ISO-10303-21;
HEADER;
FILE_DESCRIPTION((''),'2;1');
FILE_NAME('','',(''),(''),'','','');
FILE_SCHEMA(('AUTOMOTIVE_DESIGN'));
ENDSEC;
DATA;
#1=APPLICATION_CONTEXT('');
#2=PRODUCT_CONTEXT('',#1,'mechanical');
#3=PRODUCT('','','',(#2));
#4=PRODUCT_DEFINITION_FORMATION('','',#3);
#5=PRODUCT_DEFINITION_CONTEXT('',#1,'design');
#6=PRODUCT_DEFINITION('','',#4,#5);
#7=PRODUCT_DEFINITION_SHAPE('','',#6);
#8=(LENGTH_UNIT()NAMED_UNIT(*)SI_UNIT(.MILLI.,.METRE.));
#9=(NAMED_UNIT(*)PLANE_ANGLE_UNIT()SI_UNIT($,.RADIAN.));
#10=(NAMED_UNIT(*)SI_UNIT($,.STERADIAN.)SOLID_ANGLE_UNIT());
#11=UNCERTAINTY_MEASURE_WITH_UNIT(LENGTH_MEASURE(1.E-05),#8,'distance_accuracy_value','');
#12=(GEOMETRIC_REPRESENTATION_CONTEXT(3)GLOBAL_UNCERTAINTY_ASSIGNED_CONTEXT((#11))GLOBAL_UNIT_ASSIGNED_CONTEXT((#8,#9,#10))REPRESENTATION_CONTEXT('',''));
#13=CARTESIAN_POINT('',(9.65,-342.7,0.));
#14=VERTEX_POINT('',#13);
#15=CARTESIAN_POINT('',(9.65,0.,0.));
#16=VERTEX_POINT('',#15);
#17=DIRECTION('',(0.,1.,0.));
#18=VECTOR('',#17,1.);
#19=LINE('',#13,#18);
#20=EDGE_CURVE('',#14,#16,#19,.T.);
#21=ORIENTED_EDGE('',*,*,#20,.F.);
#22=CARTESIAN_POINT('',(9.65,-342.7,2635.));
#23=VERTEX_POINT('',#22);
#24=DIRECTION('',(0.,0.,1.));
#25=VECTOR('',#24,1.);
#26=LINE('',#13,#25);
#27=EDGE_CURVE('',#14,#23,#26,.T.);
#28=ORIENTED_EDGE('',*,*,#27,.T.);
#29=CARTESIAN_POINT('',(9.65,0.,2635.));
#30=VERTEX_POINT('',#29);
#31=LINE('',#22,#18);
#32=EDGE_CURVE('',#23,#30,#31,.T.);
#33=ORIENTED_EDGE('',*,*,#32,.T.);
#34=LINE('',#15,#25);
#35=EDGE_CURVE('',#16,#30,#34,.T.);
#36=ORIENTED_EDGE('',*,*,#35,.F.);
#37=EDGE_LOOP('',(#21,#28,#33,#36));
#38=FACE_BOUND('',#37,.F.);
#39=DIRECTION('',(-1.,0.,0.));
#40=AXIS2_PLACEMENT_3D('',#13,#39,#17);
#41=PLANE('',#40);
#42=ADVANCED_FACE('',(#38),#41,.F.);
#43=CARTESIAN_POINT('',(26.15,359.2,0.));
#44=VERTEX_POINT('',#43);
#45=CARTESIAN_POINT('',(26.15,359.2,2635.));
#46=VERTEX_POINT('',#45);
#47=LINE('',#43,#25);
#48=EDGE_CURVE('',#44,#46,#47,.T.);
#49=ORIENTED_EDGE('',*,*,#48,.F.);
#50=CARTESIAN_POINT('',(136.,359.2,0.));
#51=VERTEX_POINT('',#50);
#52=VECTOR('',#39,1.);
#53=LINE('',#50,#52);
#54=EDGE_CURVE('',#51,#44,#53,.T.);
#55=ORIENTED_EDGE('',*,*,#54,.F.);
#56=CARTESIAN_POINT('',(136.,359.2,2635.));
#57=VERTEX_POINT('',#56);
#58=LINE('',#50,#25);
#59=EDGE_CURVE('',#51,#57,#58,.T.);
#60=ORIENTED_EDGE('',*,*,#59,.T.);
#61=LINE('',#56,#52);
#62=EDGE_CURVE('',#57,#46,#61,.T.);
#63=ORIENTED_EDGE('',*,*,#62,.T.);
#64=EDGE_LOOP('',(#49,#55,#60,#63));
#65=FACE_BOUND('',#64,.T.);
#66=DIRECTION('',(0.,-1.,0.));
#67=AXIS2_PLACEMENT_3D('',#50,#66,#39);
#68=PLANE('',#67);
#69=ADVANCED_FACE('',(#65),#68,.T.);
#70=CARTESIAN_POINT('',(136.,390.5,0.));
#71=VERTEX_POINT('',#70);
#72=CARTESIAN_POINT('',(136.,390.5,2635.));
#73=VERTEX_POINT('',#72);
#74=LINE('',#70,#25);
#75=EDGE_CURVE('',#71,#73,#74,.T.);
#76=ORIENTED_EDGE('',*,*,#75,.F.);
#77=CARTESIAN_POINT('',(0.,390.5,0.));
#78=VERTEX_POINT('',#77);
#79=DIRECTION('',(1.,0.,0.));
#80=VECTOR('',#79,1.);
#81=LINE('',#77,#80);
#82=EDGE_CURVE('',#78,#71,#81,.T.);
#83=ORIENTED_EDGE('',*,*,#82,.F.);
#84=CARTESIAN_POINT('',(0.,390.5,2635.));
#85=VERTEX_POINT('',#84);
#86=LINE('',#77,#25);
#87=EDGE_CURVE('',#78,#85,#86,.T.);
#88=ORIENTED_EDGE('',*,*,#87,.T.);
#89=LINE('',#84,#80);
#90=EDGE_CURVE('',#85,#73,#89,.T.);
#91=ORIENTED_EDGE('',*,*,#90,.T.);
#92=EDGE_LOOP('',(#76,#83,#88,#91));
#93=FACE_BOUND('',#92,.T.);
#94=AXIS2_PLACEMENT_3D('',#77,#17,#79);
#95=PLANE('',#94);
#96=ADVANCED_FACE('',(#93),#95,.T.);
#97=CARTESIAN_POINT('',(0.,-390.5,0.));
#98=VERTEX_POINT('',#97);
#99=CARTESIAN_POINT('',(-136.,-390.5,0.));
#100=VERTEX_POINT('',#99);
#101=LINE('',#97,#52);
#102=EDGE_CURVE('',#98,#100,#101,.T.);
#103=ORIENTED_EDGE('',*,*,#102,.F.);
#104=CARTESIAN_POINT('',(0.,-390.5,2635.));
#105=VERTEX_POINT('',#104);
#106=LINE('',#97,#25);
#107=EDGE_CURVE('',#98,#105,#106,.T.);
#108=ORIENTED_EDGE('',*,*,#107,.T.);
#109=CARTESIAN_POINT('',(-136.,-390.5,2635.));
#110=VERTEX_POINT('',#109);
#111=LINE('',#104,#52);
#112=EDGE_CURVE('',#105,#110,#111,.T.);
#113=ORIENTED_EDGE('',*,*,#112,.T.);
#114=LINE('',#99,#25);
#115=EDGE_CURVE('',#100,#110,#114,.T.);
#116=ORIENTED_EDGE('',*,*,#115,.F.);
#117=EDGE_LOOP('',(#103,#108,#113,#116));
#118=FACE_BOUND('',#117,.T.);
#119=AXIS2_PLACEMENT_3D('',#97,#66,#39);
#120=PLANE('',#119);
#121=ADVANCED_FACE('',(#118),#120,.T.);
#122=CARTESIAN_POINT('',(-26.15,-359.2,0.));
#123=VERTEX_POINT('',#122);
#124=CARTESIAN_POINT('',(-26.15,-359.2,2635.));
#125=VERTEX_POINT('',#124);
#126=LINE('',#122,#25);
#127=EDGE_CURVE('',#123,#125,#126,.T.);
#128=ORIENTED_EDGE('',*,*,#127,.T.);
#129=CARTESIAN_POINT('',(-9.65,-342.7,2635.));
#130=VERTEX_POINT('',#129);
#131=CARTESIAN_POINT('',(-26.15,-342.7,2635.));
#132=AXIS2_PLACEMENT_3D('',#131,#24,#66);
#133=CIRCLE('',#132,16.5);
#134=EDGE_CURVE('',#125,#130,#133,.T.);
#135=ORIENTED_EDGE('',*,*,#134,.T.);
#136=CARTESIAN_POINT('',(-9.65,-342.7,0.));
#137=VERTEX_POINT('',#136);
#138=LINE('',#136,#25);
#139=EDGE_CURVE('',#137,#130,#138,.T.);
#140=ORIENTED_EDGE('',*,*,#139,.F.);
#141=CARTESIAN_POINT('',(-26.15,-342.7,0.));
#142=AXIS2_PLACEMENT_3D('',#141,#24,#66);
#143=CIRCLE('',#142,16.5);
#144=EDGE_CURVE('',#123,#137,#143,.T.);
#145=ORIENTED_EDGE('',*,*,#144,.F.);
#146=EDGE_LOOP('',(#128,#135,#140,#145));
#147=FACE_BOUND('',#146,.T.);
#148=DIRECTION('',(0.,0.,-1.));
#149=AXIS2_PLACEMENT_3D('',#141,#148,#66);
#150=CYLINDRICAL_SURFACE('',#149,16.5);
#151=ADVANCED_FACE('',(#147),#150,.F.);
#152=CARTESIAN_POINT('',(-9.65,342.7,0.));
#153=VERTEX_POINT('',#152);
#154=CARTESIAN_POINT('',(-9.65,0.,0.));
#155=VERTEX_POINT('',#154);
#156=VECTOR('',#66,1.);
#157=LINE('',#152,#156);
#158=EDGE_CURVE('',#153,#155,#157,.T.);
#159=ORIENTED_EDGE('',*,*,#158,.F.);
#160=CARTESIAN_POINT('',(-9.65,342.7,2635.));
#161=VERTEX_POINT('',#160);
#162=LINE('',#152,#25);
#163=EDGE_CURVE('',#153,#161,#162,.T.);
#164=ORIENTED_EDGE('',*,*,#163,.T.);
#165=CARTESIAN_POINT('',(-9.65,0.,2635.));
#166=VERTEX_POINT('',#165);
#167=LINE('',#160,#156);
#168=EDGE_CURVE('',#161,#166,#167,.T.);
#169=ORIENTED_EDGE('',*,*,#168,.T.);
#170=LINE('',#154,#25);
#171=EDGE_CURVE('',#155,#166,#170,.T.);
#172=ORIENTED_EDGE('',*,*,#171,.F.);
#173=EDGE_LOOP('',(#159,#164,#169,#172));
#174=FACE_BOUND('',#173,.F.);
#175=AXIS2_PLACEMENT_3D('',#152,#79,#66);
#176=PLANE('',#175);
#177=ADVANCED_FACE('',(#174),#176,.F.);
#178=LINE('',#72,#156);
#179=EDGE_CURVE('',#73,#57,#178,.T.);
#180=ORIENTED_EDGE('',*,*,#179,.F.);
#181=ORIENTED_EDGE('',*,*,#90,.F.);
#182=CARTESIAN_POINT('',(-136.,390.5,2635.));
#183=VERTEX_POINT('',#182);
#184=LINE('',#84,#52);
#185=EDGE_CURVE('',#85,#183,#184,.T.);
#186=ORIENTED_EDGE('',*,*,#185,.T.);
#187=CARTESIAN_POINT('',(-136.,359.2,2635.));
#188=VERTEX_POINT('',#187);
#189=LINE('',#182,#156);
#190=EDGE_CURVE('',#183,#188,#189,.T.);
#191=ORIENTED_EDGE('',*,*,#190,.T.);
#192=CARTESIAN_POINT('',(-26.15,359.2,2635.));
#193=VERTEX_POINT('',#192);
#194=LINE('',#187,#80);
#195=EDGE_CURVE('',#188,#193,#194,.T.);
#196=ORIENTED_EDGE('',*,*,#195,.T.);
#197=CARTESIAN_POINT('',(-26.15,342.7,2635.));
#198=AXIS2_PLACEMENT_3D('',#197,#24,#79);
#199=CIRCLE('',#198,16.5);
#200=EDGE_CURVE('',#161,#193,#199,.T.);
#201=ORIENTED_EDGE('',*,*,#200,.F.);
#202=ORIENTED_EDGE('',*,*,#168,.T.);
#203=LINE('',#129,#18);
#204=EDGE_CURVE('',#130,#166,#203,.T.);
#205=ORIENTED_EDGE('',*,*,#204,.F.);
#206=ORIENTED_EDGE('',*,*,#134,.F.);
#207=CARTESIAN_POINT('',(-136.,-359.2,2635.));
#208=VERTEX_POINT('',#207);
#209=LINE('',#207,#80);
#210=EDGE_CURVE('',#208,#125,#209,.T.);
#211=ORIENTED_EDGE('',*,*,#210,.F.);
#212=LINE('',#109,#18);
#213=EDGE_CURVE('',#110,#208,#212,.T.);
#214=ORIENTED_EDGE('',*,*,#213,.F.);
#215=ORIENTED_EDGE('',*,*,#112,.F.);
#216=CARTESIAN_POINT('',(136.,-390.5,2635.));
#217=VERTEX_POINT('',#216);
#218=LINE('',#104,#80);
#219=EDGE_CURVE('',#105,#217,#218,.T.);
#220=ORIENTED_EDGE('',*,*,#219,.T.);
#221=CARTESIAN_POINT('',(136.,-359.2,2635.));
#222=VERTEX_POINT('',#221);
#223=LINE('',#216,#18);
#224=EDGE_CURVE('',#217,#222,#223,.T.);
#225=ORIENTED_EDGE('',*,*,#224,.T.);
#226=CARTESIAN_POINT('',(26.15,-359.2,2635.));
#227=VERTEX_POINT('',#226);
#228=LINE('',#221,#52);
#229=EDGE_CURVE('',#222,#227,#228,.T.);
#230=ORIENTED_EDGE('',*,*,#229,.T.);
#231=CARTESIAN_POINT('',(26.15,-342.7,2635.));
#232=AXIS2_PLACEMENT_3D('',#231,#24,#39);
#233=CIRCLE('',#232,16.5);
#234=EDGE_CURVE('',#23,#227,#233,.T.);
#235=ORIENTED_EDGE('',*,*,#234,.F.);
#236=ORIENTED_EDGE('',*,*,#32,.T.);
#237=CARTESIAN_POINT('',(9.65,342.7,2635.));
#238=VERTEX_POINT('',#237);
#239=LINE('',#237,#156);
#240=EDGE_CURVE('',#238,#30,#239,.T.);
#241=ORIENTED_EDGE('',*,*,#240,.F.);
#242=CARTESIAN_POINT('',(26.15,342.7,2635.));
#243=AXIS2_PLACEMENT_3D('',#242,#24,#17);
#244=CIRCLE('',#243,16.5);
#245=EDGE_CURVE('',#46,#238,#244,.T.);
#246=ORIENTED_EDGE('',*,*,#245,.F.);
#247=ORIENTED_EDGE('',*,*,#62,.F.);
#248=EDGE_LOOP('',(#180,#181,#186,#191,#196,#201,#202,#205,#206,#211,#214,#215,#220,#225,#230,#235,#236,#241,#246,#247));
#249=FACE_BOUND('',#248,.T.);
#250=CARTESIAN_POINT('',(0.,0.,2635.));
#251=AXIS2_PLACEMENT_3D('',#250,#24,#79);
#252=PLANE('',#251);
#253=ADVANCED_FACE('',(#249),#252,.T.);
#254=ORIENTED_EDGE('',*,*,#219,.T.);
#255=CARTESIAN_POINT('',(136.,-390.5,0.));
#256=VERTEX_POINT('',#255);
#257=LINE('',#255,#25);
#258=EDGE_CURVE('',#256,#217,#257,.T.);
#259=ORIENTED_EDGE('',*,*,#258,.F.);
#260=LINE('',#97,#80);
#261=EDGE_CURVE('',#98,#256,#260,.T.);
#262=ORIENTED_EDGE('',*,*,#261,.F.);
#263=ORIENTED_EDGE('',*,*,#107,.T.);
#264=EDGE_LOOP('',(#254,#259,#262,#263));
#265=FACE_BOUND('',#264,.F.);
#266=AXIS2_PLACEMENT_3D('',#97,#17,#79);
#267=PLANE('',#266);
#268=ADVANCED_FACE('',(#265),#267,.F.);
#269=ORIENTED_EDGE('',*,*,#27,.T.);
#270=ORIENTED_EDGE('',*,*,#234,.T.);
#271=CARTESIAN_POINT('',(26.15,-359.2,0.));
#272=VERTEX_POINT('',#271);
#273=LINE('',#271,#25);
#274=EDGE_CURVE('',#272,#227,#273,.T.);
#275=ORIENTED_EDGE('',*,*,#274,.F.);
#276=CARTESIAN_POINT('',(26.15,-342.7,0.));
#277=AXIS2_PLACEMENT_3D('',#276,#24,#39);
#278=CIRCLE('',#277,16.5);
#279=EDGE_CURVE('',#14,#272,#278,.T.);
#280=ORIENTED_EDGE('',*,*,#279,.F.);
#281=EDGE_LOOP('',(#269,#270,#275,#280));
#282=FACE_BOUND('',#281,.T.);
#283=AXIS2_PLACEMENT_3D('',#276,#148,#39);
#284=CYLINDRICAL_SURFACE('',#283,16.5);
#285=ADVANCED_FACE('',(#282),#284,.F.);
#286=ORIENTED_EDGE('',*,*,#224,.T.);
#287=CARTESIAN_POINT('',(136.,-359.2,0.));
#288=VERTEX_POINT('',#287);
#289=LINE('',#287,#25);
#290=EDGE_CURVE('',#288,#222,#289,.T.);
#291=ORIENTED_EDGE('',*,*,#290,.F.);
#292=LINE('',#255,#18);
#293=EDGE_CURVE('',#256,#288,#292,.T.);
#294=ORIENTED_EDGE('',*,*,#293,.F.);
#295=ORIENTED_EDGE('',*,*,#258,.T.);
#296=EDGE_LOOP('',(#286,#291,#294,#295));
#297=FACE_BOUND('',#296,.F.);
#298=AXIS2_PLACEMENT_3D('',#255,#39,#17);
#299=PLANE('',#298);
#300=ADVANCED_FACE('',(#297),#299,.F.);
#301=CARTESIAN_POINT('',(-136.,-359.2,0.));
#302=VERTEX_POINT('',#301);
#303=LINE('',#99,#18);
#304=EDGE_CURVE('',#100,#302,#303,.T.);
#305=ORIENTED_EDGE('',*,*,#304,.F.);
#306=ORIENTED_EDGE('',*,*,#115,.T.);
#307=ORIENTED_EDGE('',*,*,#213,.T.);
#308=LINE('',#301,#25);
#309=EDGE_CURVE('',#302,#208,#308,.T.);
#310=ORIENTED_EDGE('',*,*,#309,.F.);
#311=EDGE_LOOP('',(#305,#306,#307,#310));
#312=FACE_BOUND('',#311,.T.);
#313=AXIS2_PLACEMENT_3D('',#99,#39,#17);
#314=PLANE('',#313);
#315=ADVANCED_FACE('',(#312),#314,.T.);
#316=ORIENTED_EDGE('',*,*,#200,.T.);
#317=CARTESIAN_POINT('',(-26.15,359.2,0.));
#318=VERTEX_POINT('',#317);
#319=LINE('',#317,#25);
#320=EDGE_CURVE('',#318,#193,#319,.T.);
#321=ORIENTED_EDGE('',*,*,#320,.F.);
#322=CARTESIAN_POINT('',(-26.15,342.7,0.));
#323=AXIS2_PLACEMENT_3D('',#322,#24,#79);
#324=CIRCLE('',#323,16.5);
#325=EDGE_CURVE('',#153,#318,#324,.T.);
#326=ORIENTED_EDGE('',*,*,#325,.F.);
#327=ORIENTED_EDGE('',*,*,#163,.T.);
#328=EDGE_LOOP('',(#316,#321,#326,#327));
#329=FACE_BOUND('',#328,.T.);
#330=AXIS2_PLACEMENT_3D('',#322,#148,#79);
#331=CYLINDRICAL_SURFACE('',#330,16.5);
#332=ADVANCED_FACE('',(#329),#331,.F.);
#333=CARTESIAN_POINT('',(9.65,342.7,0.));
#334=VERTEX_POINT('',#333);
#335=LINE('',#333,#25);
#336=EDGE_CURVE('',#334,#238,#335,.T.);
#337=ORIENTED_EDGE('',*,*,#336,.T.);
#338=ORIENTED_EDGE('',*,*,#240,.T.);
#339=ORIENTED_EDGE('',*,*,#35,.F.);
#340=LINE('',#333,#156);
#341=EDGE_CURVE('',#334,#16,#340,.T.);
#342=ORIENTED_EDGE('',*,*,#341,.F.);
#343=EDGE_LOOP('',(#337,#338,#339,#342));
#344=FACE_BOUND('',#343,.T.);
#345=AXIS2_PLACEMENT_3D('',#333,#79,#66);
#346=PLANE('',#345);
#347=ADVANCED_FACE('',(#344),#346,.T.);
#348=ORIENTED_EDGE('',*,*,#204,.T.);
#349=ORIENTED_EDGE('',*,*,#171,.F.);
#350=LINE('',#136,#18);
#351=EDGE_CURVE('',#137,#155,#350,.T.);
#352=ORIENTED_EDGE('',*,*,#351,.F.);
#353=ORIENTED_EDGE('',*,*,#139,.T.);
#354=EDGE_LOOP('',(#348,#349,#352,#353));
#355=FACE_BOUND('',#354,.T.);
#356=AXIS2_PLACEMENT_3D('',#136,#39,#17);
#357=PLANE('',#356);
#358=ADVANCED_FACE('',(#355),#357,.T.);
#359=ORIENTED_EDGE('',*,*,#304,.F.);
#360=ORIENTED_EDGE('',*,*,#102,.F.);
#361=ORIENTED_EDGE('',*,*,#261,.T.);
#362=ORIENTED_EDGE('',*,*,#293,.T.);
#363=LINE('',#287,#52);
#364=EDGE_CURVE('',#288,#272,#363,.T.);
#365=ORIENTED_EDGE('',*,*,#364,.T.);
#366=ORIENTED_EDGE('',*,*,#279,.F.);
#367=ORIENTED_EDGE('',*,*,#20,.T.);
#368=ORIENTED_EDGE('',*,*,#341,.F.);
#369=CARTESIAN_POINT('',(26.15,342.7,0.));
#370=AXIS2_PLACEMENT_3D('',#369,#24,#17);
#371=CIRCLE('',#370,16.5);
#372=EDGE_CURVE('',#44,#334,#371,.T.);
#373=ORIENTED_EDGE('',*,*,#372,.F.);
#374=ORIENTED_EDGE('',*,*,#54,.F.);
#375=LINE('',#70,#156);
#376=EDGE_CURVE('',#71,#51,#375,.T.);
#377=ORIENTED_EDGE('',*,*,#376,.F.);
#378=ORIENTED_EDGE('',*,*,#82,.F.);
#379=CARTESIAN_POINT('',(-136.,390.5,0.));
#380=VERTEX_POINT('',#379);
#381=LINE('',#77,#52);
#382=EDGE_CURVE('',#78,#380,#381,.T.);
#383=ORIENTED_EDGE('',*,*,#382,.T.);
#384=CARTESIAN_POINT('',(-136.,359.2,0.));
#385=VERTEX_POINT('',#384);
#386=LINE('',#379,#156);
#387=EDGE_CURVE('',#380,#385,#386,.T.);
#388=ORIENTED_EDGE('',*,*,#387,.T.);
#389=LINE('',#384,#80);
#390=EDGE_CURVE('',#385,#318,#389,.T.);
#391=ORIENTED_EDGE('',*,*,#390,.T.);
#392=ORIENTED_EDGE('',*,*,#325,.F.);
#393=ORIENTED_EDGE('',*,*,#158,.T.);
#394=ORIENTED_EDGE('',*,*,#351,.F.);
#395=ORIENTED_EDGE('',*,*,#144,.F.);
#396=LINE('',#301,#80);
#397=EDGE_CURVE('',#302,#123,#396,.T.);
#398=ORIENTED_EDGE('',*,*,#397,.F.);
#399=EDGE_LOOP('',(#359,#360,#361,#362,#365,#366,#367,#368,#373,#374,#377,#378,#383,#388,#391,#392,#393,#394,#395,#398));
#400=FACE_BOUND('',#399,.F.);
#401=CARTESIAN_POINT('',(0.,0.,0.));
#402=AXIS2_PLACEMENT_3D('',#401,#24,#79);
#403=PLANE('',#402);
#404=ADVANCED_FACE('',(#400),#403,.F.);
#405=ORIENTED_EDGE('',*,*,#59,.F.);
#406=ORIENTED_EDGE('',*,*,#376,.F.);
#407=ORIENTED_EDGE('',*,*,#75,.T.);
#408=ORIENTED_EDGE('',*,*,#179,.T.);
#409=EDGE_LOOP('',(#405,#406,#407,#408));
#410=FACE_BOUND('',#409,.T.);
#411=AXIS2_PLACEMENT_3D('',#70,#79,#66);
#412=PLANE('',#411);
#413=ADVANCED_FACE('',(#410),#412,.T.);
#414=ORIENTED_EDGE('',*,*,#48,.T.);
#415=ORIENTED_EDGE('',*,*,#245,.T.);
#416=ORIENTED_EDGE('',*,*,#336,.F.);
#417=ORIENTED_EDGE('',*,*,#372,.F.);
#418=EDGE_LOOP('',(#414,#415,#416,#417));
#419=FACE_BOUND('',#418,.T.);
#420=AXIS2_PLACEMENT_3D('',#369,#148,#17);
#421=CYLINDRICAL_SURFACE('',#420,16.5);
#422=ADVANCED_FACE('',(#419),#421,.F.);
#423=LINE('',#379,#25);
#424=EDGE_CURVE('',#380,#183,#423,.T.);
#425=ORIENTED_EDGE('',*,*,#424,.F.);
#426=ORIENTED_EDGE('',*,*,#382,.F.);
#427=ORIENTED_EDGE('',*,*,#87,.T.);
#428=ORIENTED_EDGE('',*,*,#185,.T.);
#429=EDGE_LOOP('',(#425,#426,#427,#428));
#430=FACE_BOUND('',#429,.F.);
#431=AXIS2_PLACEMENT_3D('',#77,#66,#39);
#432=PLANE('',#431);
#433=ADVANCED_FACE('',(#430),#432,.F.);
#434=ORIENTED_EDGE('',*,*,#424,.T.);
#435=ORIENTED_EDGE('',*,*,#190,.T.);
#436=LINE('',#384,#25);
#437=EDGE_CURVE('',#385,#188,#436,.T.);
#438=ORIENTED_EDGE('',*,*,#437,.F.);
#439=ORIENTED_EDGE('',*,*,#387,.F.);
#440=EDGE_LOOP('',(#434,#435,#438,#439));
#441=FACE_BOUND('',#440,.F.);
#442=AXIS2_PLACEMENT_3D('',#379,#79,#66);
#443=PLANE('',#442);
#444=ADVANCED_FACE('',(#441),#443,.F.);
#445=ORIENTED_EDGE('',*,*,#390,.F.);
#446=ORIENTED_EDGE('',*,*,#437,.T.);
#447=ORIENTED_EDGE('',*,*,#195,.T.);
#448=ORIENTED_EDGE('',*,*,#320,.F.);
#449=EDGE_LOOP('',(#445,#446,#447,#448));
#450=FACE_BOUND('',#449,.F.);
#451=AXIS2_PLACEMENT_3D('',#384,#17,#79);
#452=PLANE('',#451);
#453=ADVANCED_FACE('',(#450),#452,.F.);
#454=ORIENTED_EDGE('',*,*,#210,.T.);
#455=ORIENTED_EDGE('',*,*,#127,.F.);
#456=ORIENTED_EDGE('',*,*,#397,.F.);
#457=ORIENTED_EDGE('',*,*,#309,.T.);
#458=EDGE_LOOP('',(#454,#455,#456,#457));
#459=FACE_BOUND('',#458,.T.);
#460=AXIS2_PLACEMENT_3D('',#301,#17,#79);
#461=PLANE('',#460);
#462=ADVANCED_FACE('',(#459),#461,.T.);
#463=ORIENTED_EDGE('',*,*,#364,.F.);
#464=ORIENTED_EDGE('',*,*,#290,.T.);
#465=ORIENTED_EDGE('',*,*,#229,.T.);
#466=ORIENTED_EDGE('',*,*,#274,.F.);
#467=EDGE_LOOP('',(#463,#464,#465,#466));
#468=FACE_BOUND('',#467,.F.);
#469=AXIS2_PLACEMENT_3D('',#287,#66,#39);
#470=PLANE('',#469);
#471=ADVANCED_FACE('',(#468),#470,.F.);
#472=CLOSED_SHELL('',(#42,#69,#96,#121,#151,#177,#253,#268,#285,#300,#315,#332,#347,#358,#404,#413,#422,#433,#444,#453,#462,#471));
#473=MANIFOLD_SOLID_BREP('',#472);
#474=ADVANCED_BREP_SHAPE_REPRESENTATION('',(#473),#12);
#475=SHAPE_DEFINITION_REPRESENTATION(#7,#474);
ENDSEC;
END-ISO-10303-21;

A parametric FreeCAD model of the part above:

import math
import FreeCAD as App
import Part
import Sketcher

V = App.Vector
Q = App.Units.Quantity

doc = App.newDocument("Part")
body = doc.addObject("PartDesign::Body", "Body")

# Sketch on XY plane
sketch1 = doc.addObject("Sketcher::SketchObject", "Sketch")
body.addObject(sketch1)
sketch1.AttachmentSupport = (doc.XY_Plane, [""])
sketch1.MapMode = "FlatFace"
sketch1.addGeometry([
    Part.LineSegment(V(-136, -359, 0), V(-136, -390, 0)),  # 0
    Part.LineSegment(V(-136, -390, 0), V(136, -390, 0)),  # 1
    Part.LineSegment(V(136, -390, 0), V(136, -359, 0)),  # 2
    Part.LineSegment(V(136, -359, 0), V(26, -359, 0)),  # 3
    Part.ArcOfCircle(Part.Circle(V(26, -343, 0), V(0, 0, 1), 16), math.radians(180), math.radians(270)),  # 4
    Part.LineSegment(V(10, -343, 0), V(10, 343, 0)),  # 5
    Part.ArcOfCircle(Part.Circle(V(26, 343, 0), V(0, 0, 1), 16), math.radians(90), math.radians(180)),  # 6
    Part.LineSegment(V(26, 359, 0), V(136, 359, 0)),  # 7
    Part.LineSegment(V(136, 359, 0), V(136, 390, 0)),  # 8
    Part.LineSegment(V(136, 390, 0), V(-136, 390, 0)),  # 9
    Part.LineSegment(V(-136, 390, 0), V(-136, 359, 0)),  # 10
    Part.LineSegment(V(-136, 359, 0), V(-26, 359, 0)),  # 11
    Part.ArcOfCircle(Part.Circle(V(-26, 343, 0), V(0, 0, 1), 16), math.radians(0), math.radians(90)),  # 12
    Part.LineSegment(V(-10, 343, 0), V(-10, -343, 0)),  # 13
    Part.ArcOfCircle(Part.Circle(V(-26, -343, 0), V(0, 0, 1), 16), math.radians(-90), math.radians(0)),  # 14
    Part.LineSegment(V(-26, -359, 0), V(-136, -359, 0)),  # 15
], False)
sketch1.addConstraint([
    Sketcher.Constraint("Coincident", 0, 2, 1, 1),
    Sketcher.Constraint("Coincident", 1, 2, 2, 1),
    Sketcher.Constraint("Coincident", 2, 2, 3, 1),
    Sketcher.Constraint("Tangent", 3, 2, 4, 2),
    Sketcher.Constraint("Tangent", 4, 1, 5, 1),
    Sketcher.Constraint("Tangent", 5, 2, 6, 2),
    Sketcher.Constraint("Tangent", 6, 1, 7, 1),
    Sketcher.Constraint("Coincident", 7, 2, 8, 1),
    Sketcher.Constraint("Coincident", 8, 2, 9, 1),
    Sketcher.Constraint("Coincident", 9, 2, 10, 1),
    Sketcher.Constraint("Coincident", 10, 2, 11, 1),
    Sketcher.Constraint("Tangent", 11, 2, 12, 2),
    Sketcher.Constraint("Tangent", 12, 1, 13, 1),
    Sketcher.Constraint("Tangent", 13, 2, 14, 2),
    Sketcher.Constraint("Tangent", 14, 1, 15, 1),
    Sketcher.Constraint("Coincident", 15, 2, 0, 1),
    Sketcher.Constraint("Vertical", 0),
    Sketcher.Constraint("Horizontal", 1),
    Sketcher.Constraint("Vertical", 2),
    Sketcher.Constraint("Horizontal", 3),
    Sketcher.Constraint("Vertical", 5),
    Sketcher.Constraint("Horizontal", 7),
    Sketcher.Constraint("Vertical", 8),
    Sketcher.Constraint("Horizontal", 9),
    Sketcher.Constraint("Vertical", 10),
    Sketcher.Constraint("Horizontal", 11),
    Sketcher.Constraint("Vertical", 13),
    Sketcher.Constraint("Horizontal", 15),
    Sketcher.Constraint("Equal", 4, 6),
    Sketcher.Constraint("Equal", 6, 12),
    Sketcher.Constraint("Equal", 12, 14),
    Sketcher.Constraint("Symmetric", 4, 3, 12, 3, -1, 1),
    Sketcher.Constraint("Symmetric", 0, 2, 8, 2, -1, 1),
    Sketcher.Constraint("Symmetric", 7, 2, 10, 2, -2),
    Sketcher.Constraint("Symmetric", 2, 2, 15, 2, -2),
    Sketcher.Constraint("Radius", 4, Q("16.5 mm")),
    Sketcher.Constraint("DistanceY", 0, 2, 0, 1, Q("31.3 mm")),
    Sketcher.Constraint("DistanceX", 0, 2, -1, 1, Q("136 mm")),
    Sketcher.Constraint("DistanceY", 0, 2, -1, 1, Q("390.5 mm")),
    Sketcher.Constraint("DistanceX", -1, 1, 4, 1, Q("9.65 mm")),
])
pad1 = doc.addObject("PartDesign::Pad", "Pad")
body.addObject(pad1)
pad1.Profile = sketch1
pad1.Length = 2635

doc.recompute()
